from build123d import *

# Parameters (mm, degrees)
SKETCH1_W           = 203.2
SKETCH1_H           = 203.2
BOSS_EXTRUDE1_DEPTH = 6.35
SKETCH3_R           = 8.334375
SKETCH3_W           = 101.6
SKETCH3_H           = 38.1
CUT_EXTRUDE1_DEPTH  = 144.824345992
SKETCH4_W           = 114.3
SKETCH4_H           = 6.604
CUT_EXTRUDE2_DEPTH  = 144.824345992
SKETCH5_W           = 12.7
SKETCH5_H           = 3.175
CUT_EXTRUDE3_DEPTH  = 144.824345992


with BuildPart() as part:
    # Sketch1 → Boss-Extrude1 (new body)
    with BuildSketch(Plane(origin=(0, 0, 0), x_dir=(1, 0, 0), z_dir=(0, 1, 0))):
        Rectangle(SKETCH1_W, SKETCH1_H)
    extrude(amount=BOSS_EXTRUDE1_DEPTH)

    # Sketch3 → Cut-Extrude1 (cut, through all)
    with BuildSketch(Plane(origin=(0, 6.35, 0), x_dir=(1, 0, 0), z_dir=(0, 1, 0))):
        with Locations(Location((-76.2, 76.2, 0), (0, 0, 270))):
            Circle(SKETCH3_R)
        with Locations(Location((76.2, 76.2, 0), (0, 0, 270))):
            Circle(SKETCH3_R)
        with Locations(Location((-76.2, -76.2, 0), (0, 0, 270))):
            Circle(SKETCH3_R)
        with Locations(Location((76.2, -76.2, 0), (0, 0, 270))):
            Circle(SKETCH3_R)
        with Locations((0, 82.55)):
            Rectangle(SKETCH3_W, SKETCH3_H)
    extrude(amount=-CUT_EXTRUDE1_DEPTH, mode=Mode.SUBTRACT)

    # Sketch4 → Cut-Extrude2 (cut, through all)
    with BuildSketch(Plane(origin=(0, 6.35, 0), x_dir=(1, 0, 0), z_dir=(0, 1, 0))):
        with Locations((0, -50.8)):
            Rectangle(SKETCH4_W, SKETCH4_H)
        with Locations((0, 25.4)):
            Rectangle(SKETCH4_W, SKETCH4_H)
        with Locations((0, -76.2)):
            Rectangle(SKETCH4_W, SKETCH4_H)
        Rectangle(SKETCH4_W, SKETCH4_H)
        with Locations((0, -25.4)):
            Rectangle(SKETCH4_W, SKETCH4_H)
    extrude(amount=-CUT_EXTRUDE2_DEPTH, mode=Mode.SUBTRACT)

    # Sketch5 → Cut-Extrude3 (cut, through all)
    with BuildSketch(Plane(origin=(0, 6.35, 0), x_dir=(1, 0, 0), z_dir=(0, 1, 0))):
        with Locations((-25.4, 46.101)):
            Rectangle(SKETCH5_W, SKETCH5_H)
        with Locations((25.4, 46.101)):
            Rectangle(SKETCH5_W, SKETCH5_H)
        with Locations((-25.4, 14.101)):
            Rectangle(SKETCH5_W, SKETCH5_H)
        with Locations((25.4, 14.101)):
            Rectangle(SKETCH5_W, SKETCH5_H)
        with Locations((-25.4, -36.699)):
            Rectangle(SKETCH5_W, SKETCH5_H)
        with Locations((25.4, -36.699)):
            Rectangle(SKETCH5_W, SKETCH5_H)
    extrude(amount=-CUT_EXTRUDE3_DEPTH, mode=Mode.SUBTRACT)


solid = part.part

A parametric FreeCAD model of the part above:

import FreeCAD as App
import Part
import Sketcher

V = App.Vector
Q = App.Units.Quantity

doc = App.newDocument("Part")
body = doc.addObject("PartDesign::Body", "Body")

# Sketch on XZ plane
sketch1 = doc.addObject("Sketcher::SketchObject", "Sketch")
body.addObject(sketch1)
sketch1.AttachmentSupport = (doc.XZ_Plane, [""])
sketch1.MapMode = "FlatFace"
sketch1.addGeometry([
    Part.LineSegment(V(-102, -102, 0), V(-102, 102, 0)),
    Part.LineSegment(V(-102, 102, 0), V(102, 102, 0)),
    Part.LineSegment(V(102, 102, 0), V(102, -102, 0)),
    Part.LineSegment(V(102, -102, 0), V(-102, -102, 0)),
], False)
sketch1.addConstraint([
    Sketcher.Constraint("Coincident", 0, 2, 1, 1),
    Sketcher.Constraint("Coincident", 1, 2, 2, 1),
    Sketcher.Constraint("Coincident", 2, 2, 3, 1),
    Sketcher.Constraint("Coincident", 3, 2, 0, 1),
    Sketcher.Constraint("Vertical", 0),
    Sketcher.Constraint("Horizontal", 1),
    Sketcher.Constraint("Vertical", 2),
    Sketcher.Constraint("Horizontal", 3),
    Sketcher.Constraint("Symmetric", 0, 2, 2, 2, -1, 1),
    Sketcher.Constraint("Equal", 3, 0),
    Sketcher.Constraint("DistanceX", 1, 1, 1, 2, Q("8 in")),
])
pad1 = doc.addObject("PartDesign::Pad", "Pad")
body.addObject(pad1)
pad1.Profile = sketch1
pad1.Length = Q("0.25 in")
pad1.Reversed = True

# Sketch on XZ plane
sketch2 = doc.addObject("Sketcher::SketchObject", "Sketch001")
body.addObject(sketch2)
sketch2.AttachmentSupport = (doc.XZ_Plane, [""])
sketch2.MapMode = "FlatFace"
sketch2.AttachmentOffset = App.Placement(V(0, 0, -0.25 * 25.4), App.Rotation())
sketch2.addGeometry([
    Part.Circle(V(-76, -76, 0), V(0, 0, 1), 8),  # 0
    Part.Circle(V(76, -76, 0), V(0, 0, 1), 8),  # 1
    Part.Circle(V(-76, 76, 0), V(0, 0, 1), 8),  # 2
    Part.Circle(V(76, 76, 0), V(0, 0, 1), 8),  # 3
    Part.LineSegment(V(-51, -102, 0), V(-51, -64, 0)),  # 4
    Part.LineSegment(V(-51, -64, 0), V(51, -64, 0)),  # 5
    Part.LineSegment(V(51, -64, 0), V(51, -102, 0)),  # 6
    Part.LineSegment(V(51, -102, 0), V(-51, -102, 0)),  # 7
], False)
sketch2.addConstraint([
    Sketcher.Constraint("Coincident", 4, 2, 5, 1),
    Sketcher.Constraint("Coincident", 5, 2, 6, 1),
    Sketcher.Constraint("Coincident", 6, 2, 7, 1),
    Sketcher.Constraint("Coincident", 7, 2, 4, 1),
    Sketcher.Constraint("Vertical", 4),
    Sketcher.Constraint("Horizontal", 5),
    Sketcher.Constraint("Vertical", 6),
    Sketcher.Constraint("Horizontal", 7),
    Sketcher.Constraint("Equal", 0, 1),
    Sketcher.Constraint("Equal", 1, 2),
    Sketcher.Constraint("Equal", 2, 3),
    Sketcher.Constraint("Symmetric", 1, 3, 2, 3, -1, 1),
    Sketcher.Constraint("Symmetric", 0, 3, 3, 3, -1, 1),
    Sketcher.Constraint("Symmetric", 0, 3, 1, 3, -2),
    Sketcher.Constraint("DistanceX", 5, 1, 5, 2, Q("4 in")),
    Sketcher.Constraint("Diameter", 0, Q("0.65625 in")),
    Sketcher.Constraint("DistanceY", 4, 1, 4, 2, Q("1.5 in")),
    Sketcher.Constraint("DistanceX", 0, 3, -1, 1, Q("3 in")),
    Sketcher.Constraint("DistanceY", 0, 3, -1, 1, Q("3 in")),
    Sketcher.Constraint("DistanceX", 4, 2, -1, 1, Q("2 in")),
    Sketcher.Constraint("DistanceY", 6, 2, -1, 1, Q("4 in")),
])
pocket1 = doc.addObject("PartDesign::Pocket", "Pocket")
body.addObject(pocket1)
pocket1.Profile = sketch2
pocket1.Type = "ThroughAll"
pocket1.Reversed = True

# Sketch on XZ plane
sketch3 = doc.addObject("Sketcher::SketchObject", "Sketch002")
body.addObject(sketch3)
sketch3.AttachmentSupport = (doc.XZ_Plane, [""])
sketch3.MapMode = "FlatFace"
sketch3.AttachmentOffset = App.Placement(V(0, 0, -0.25 * 25.4), App.Rotation())
sketch3.addGeometry([
    Part.LineSegment(V(-57, 47, 0), V(-57, 54, 0)),  # 0
    Part.LineSegment(V(-57, 54, 0), V(57, 54, 0)),  # 1
    Part.LineSegment(V(57, 54, 0), V(57, 47, 0)),  # 2
    Part.LineSegment(V(57, 47, 0), V(-57, 47, 0)),  # 3
    Part.LineSegment(V(-57, -29, 0), V(-57, -22, 0)),  # 4
    Part.LineSegment(V(-57, -22, 0), V(57, -22, 0)),  # 5
    Part.LineSegment(V(57, -22, 0), V(57, -29, 0)),  # 6
    Part.LineSegment(V(57, -29, 0), V(-57, -29, 0)),  # 7
    Part.LineSegment(V(-57, 73, 0), V(-57, 80, 0)),  # 8
    Part.LineSegment(V(-57, 80, 0), V(57, 80, 0)),  # 9
    Part.LineSegment(V(57, 80, 0), V(57, 73, 0)),  # 10
    Part.LineSegment(V(57, 73, 0), V(-57, 73, 0)),  # 11
    Part.LineSegment(V(-57, -3, 0), V(-57, 3, 0)),  # 12
    Part.LineSegment(V(-57, 3, 0), V(57, 3, 0)),  # 13
    Part.LineSegment(V(57, 3, 0), V(57, -3, 0)),  # 14
    Part.LineSegment(V(57, -3, 0), V(-57, -3, 0)),  # 15
    Part.LineSegment(V(-57, 22, 0), V(-57, 29, 0)),  # 16
    Part.LineSegment(V(-57, 29, 0), V(57, 29, 0)),  # 17
    Part.LineSegment(V(57, 29, 0), V(57, 22, 0)),  # 18
    Part.LineSegment(V(57, 22, 0), V(-57, 22, 0)),  # 19
], False)
sketch3.addConstraint([
    Sketcher.Constraint("Coincident", 0, 2, 1, 1),
    Sketcher.Constraint("Coincident", 1, 2, 2, 1),
    Sketcher.Constraint("Coincident", 2, 2, 3, 1),
    Sketcher.Constraint("Coincident", 3, 2, 0, 1),
    Sketcher.Constraint("Coincident", 4, 2, 5, 1),
    Sketcher.Constraint("Coincident", 5, 2, 6, 1),
    Sketcher.Constraint("Coincident", 6, 2, 7, 1),
    Sketcher.Constraint("Coincident", 7, 2, 4, 1),
    Sketcher.Constraint("Coincident", 8, 2, 9, 1),
    Sketcher.Constraint("Coincident", 9, 2, 10, 1),
    Sketcher.Constraint("Coincident", 10, 2, 11, 1),
    Sketcher.Constraint("Coincident", 11, 2, 8, 1),
    Sketcher.Constraint("Coincident", 12, 2, 13, 1),
    Sketcher.Constraint("Coincident", 13, 2, 14, 1),
    Sketcher.Constraint("Coincident", 14, 2, 15, 1),
    Sketcher.Constraint("Coincident", 15, 2, 12, 1),
    Sketcher.Constraint("Coincident", 16, 2, 17, 1),
    Sketcher.Constraint("Coincident", 17, 2, 18, 1),
    Sketcher.Constraint("Coincident", 18, 2, 19, 1),
    Sketcher.Constraint("Coincident", 19, 2, 16, 1),
    Sketcher.Constraint("Vertical", 0),
    Sketcher.Constraint("Horizontal", 1),
    Sketcher.Constraint("Vertical", 2),
    Sketcher.Constraint("Horizontal", 3),
    Sketcher.Constraint("Vertical", 4),
    Sketcher.Constraint("Horizontal", 5),
    Sketcher.Constraint("Vertical", 6),
    Sketcher.Constraint("Horizontal", 7),
    Sketcher.Constraint("Vertical", 8),
    Sketcher.Constraint("Horizontal", 9),
    Sketcher.Constraint("Vertical", 10),
    Sketcher.Constraint("Horizontal", 11),
    Sketcher.Constraint("Vertical", 12),
    Sketcher.Constraint("Horizontal", 13),
    Sketcher.Constraint("Vertical", 14),
    Sketcher.Constraint("Horizontal", 15),
    Sketcher.Constraint("Vertical", 16),
    Sketcher.Constraint("Horizontal", 17),
    Sketcher.Constraint("Vertical", 18),
    Sketcher.Constraint("Horizontal", 19),
    Sketcher.Constraint("Symmetric", 12, 2, 14, 2, -1, 1),
    Sketcher.Constraint("Symmetric", 6, 2, 16, 2, -1, 1),
    Sketcher.Constraint("Symmetric", 4, 2, 18, 2, -1, 1),
    Sketcher.Constraint("Vertical", 3, 2, 4, 2),
    Sketcher.Constraint("Vertical", 2, 2, 5, 2),
    Sketcher.Constraint("Vertical", 7, 2, 8, 2),
    Sketcher.Constraint("Vertical", 6, 2, 9, 2),
    Sketcher.Constraint("Vertical", 11, 2, 12, 2),
    Sketcher.Constraint("Vertical", 10, 2, 13, 2),
    Sketcher.Constraint("Equal", 2, 4),
    Sketcher.Constraint("Equal", 6, 8),
    Sketcher.Constraint("Equal", 10, 12),
    Sketcher.Constraint("DistanceX", 1, 1, 1, 2, Q("4.5 in")),
    Sketcher.Constraint("DistanceY", 4, 2, 0, 2, Q("3 in")),
    Sketcher.Constraint("DistanceY", 0, 2, 8, 2, Q("1 in")),
    Sketcher.Constraint("DistanceY", 4, 2, 12, 2, Q("1 in")),
    Sketcher.Constraint("DistanceY", 0, 1, 0, 2, Q("0.26 in")),
])
pocket2 = doc.addObject("PartDesign::Pocket", "Pocket001")
body.addObject(pocket2)
pocket2.Profile = sketch3
pocket2.Type = "ThroughAll"
pocket2.Reversed = True

# Sketch on XZ plane
sketch4 = doc.addObject("Sketcher::SketchObject", "Sketch003")
body.addObject(sketch4)
sketch4.AttachmentSupport = (doc.XZ_Plane, [""])
sketch4.MapMode = "FlatFace"
sketch4.AttachmentOffset = App.Placement(V(0, 0, -0.25 * 25.4), App.Rotation())
sketch4.addGeometry([
    Part.LineSegment(V(-31.8, -47.7, 0), V(-31.8, -44.5, 0)),  # 0
    Part.LineSegment(V(-31.8, -44.5, 0), V(-19.1, -44.5, 0)),  # 1
    Part.LineSegment(V(-19.1, -44.5, 0), V(-19.1, -47.7, 0)),  # 2
    Part.LineSegment(V(-19.1, -47.7, 0), V(-31.8, -47.7, 0)),  # 3
    Part.LineSegment(V(19.1, -47.7, 0), V(19.1, -44.5, 0)),  # 4
    Part.LineSegment(V(19.1, -44.5, 0), V(31.8, -44.5, 0)),  # 5
    Part.LineSegment(V(31.8, -44.5, 0), V(31.8, -47.7, 0)),  # 6
    Part.LineSegment(V(31.8, -47.7, 0), V(19.1, -47.7, 0)),  # 7
    Part.LineSegment(V(-31.8, -15.7, 0), V(-31.8, -12.5, 0)),  # 8
    Part.LineSegment(V(-31.8, -12.5, 0), V(-19.1, -12.5, 0)),  # 9
    Part.LineSegment(V(-19.1, -12.5, 0), V(-19.1, -15.7, 0)),  # 10
    Part.LineSegment(V(-19.1, -15.7, 0), V(-31.8, -15.7, 0)),  # 11
    Part.LineSegment(V(19.1, -15.7, 0), V(19.1, -12.5, 0)),  # 12
    Part.LineSegment(V(19.1, -12.5, 0), V(31.8, -12.5, 0)),  # 13
    Part.LineSegment(V(31.8, -12.5, 0), V(31.8, -15.7, 0)),  # 14
    Part.LineSegment(V(31.8, -15.7, 0), V(19.1, -15.7, 0)),  # 15
    Part.LineSegment(V(-31.8, 35.1, 0), V(-31.8, 38.3, 0)),  # 16
    Part.LineSegment(V(-31.8, 38.3, 0), V(-19.1, 38.3, 0)),  # 17
    Part.LineSegment(V(-19.1, 38.3, 0), V(-19.1, 35.1, 0)),  # 18
    Part.LineSegment(V(-19.1, 35.1, 0), V(-31.8, 35.1, 0)),  # 19
    Part.LineSegment(V(19.1, 35.1, 0), V(19.1, 38.3, 0)),  # 20
    Part.LineSegment(V(19.1, 38.3, 0), V(31.8, 38.3, 0)),  # 21
    Part.LineSegment(V(31.8, 38.3, 0), V(31.8, 35.1, 0)),  # 22
    Part.LineSegment(V(31.8, 35.1, 0), V(19.1, 35.1, 0)),  # 23
], False)
sketch4.addConstraint([
    Sketcher.Constraint("Coincident", 0, 2, 1, 1),
    Sketcher.Constraint("Coincident", 1, 2, 2, 1),
    Sketcher.Constraint("Coincident", 2, 2, 3, 1),
    Sketcher.Constraint("Coincident", 3, 2, 0, 1),
    Sketcher.Constraint("Coincident", 4, 2, 5, 1),
    Sketcher.Constraint("Coincident", 5, 2, 6, 1),
    Sketcher.Constraint("Coincident", 6, 2, 7, 1),
    Sketcher.Constraint("Coincident", 7, 2, 4, 1),
    Sketcher.Constraint("Coincident", 8, 2, 9, 1),
    Sketcher.Constraint("Coincident", 9, 2, 10, 1),
    Sketcher.Constraint("Coincident", 10, 2, 11, 1),
    Sketcher.Constraint("Coincident", 11, 2, 8, 1),
    Sketcher.Constraint("Coincident", 12, 2, 13, 1),
    Sketcher.Constraint("Coincident", 13, 2, 14, 1),
    Sketcher.Constraint("Coincident", 14, 2, 15, 1),
    Sketcher.Constraint("Coincident", 15, 2, 12, 1),
    Sketcher.Constraint("Coincident", 16, 2, 17, 1),
    Sketcher.Constraint("Coincident", 17, 2, 18, 1),
    Sketcher.Constraint("Coincident", 18, 2, 19, 1),
    Sketcher.Constraint("Coincident", 19, 2, 16, 1),
    Sketcher.Constraint("Coincident", 20, 2, 21, 1),
    Sketcher.Constraint("Coincident", 21, 2, 22, 1),
    Sketcher.Constraint("Coincident", 22, 2, 23, 1),
    Sketcher.Constraint("Coincident", 23, 2, 20, 1),
    Sketcher.Constraint("Vertical", 0),
    Sketcher.Constraint("Horizontal", 1),
    Sketcher.Constraint("Vertical", 2),
    Sketcher.Constraint("Horizontal", 3),
    Sketcher.Constraint("Vertical", 4),
    Sketcher.Constraint("Horizontal", 5),
    Sketcher.Constraint("Vertical", 6),
    Sketcher.Constraint("Horizontal", 7),
    Sketcher.Constraint("Vertical", 8),
    Sketcher.Constraint("Horizontal", 9),
    Sketcher.Constraint("Vertical", 10),
    Sketcher.Constraint("Horizontal", 11),
    Sketcher.Constraint("Vertical", 12),
    Sketcher.Constraint("Horizontal", 13),
    Sketcher.Constraint("Vertical", 14),
    Sketcher.Constraint("Horizontal", 15),
    Sketcher.Constraint("Vertical", 16),
    Sketcher.Constraint("Horizontal", 17),
    Sketcher.Constraint("Vertical", 18),
    Sketcher.Constraint("Horizontal", 19),
    Sketcher.Constraint("Vertical", 20),
    Sketcher.Constraint("Horizontal", 21),
    Sketcher.Constraint("Vertical", 22),
    Sketcher.Constraint("Horizontal", 23),
    Sketcher.Constraint("Symmetric", 1, 2, 4, 2, -2),
    Sketcher.Constraint("Symmetric", 3, 2, 6, 2, -2),
    Sketcher.Constraint("Symmetric", 9, 2, 12, 2, -2),
    Sketcher.Constraint("Symmetric", 11, 2, 14, 2, -2),
    Sketcher.Constraint("Symmetric", 17, 2, 20, 2, -2),
    Sketcher.Constraint("Symmetric", 19, 2, 22, 2, -2),
    Sketcher.Constraint("Vertical", 3, 2, 8, 2),
    Sketcher.Constraint("Vertical", 2, 2, 9, 2),
    Sketcher.Constraint("Vertical", 11, 2, 16, 2),
    Sketcher.Constraint("Vertical", 10, 2, 17, 2),
    Sketcher.Constraint("Equal", 6, 8),
    Sketcher.Constraint("Equal", 14, 16),
    Sketcher.Constraint("DistanceX", 1, 1, 1, 2, Q("0.5 in")),
    Sketcher.Constraint("DistanceX", 0, 2, 4, 2, Q("2 in")),
    Sketcher.Constraint("DistanceY", 8, 2, 16, 2, Q("2 in")),
    Sketcher.Constraint("DistanceY", 0, 1, 0, 2, Q("0.125 in")),
    Sketcher.Constraint("DistanceY", 0, 2, -1, 1, Q("1.7525 in")),
    Sketcher.Constraint("DistanceY", 8, 2, -1, 1, Q("12.5135 mm")),
])
pocket3 = doc.addObject("PartDesign::Pocket", "Pocket002")
body.addObject(pocket3)
pocket3.Profile = sketch4
pocket3.Type = "ThroughAll"
pocket3.Reversed = True

doc.recompute()
